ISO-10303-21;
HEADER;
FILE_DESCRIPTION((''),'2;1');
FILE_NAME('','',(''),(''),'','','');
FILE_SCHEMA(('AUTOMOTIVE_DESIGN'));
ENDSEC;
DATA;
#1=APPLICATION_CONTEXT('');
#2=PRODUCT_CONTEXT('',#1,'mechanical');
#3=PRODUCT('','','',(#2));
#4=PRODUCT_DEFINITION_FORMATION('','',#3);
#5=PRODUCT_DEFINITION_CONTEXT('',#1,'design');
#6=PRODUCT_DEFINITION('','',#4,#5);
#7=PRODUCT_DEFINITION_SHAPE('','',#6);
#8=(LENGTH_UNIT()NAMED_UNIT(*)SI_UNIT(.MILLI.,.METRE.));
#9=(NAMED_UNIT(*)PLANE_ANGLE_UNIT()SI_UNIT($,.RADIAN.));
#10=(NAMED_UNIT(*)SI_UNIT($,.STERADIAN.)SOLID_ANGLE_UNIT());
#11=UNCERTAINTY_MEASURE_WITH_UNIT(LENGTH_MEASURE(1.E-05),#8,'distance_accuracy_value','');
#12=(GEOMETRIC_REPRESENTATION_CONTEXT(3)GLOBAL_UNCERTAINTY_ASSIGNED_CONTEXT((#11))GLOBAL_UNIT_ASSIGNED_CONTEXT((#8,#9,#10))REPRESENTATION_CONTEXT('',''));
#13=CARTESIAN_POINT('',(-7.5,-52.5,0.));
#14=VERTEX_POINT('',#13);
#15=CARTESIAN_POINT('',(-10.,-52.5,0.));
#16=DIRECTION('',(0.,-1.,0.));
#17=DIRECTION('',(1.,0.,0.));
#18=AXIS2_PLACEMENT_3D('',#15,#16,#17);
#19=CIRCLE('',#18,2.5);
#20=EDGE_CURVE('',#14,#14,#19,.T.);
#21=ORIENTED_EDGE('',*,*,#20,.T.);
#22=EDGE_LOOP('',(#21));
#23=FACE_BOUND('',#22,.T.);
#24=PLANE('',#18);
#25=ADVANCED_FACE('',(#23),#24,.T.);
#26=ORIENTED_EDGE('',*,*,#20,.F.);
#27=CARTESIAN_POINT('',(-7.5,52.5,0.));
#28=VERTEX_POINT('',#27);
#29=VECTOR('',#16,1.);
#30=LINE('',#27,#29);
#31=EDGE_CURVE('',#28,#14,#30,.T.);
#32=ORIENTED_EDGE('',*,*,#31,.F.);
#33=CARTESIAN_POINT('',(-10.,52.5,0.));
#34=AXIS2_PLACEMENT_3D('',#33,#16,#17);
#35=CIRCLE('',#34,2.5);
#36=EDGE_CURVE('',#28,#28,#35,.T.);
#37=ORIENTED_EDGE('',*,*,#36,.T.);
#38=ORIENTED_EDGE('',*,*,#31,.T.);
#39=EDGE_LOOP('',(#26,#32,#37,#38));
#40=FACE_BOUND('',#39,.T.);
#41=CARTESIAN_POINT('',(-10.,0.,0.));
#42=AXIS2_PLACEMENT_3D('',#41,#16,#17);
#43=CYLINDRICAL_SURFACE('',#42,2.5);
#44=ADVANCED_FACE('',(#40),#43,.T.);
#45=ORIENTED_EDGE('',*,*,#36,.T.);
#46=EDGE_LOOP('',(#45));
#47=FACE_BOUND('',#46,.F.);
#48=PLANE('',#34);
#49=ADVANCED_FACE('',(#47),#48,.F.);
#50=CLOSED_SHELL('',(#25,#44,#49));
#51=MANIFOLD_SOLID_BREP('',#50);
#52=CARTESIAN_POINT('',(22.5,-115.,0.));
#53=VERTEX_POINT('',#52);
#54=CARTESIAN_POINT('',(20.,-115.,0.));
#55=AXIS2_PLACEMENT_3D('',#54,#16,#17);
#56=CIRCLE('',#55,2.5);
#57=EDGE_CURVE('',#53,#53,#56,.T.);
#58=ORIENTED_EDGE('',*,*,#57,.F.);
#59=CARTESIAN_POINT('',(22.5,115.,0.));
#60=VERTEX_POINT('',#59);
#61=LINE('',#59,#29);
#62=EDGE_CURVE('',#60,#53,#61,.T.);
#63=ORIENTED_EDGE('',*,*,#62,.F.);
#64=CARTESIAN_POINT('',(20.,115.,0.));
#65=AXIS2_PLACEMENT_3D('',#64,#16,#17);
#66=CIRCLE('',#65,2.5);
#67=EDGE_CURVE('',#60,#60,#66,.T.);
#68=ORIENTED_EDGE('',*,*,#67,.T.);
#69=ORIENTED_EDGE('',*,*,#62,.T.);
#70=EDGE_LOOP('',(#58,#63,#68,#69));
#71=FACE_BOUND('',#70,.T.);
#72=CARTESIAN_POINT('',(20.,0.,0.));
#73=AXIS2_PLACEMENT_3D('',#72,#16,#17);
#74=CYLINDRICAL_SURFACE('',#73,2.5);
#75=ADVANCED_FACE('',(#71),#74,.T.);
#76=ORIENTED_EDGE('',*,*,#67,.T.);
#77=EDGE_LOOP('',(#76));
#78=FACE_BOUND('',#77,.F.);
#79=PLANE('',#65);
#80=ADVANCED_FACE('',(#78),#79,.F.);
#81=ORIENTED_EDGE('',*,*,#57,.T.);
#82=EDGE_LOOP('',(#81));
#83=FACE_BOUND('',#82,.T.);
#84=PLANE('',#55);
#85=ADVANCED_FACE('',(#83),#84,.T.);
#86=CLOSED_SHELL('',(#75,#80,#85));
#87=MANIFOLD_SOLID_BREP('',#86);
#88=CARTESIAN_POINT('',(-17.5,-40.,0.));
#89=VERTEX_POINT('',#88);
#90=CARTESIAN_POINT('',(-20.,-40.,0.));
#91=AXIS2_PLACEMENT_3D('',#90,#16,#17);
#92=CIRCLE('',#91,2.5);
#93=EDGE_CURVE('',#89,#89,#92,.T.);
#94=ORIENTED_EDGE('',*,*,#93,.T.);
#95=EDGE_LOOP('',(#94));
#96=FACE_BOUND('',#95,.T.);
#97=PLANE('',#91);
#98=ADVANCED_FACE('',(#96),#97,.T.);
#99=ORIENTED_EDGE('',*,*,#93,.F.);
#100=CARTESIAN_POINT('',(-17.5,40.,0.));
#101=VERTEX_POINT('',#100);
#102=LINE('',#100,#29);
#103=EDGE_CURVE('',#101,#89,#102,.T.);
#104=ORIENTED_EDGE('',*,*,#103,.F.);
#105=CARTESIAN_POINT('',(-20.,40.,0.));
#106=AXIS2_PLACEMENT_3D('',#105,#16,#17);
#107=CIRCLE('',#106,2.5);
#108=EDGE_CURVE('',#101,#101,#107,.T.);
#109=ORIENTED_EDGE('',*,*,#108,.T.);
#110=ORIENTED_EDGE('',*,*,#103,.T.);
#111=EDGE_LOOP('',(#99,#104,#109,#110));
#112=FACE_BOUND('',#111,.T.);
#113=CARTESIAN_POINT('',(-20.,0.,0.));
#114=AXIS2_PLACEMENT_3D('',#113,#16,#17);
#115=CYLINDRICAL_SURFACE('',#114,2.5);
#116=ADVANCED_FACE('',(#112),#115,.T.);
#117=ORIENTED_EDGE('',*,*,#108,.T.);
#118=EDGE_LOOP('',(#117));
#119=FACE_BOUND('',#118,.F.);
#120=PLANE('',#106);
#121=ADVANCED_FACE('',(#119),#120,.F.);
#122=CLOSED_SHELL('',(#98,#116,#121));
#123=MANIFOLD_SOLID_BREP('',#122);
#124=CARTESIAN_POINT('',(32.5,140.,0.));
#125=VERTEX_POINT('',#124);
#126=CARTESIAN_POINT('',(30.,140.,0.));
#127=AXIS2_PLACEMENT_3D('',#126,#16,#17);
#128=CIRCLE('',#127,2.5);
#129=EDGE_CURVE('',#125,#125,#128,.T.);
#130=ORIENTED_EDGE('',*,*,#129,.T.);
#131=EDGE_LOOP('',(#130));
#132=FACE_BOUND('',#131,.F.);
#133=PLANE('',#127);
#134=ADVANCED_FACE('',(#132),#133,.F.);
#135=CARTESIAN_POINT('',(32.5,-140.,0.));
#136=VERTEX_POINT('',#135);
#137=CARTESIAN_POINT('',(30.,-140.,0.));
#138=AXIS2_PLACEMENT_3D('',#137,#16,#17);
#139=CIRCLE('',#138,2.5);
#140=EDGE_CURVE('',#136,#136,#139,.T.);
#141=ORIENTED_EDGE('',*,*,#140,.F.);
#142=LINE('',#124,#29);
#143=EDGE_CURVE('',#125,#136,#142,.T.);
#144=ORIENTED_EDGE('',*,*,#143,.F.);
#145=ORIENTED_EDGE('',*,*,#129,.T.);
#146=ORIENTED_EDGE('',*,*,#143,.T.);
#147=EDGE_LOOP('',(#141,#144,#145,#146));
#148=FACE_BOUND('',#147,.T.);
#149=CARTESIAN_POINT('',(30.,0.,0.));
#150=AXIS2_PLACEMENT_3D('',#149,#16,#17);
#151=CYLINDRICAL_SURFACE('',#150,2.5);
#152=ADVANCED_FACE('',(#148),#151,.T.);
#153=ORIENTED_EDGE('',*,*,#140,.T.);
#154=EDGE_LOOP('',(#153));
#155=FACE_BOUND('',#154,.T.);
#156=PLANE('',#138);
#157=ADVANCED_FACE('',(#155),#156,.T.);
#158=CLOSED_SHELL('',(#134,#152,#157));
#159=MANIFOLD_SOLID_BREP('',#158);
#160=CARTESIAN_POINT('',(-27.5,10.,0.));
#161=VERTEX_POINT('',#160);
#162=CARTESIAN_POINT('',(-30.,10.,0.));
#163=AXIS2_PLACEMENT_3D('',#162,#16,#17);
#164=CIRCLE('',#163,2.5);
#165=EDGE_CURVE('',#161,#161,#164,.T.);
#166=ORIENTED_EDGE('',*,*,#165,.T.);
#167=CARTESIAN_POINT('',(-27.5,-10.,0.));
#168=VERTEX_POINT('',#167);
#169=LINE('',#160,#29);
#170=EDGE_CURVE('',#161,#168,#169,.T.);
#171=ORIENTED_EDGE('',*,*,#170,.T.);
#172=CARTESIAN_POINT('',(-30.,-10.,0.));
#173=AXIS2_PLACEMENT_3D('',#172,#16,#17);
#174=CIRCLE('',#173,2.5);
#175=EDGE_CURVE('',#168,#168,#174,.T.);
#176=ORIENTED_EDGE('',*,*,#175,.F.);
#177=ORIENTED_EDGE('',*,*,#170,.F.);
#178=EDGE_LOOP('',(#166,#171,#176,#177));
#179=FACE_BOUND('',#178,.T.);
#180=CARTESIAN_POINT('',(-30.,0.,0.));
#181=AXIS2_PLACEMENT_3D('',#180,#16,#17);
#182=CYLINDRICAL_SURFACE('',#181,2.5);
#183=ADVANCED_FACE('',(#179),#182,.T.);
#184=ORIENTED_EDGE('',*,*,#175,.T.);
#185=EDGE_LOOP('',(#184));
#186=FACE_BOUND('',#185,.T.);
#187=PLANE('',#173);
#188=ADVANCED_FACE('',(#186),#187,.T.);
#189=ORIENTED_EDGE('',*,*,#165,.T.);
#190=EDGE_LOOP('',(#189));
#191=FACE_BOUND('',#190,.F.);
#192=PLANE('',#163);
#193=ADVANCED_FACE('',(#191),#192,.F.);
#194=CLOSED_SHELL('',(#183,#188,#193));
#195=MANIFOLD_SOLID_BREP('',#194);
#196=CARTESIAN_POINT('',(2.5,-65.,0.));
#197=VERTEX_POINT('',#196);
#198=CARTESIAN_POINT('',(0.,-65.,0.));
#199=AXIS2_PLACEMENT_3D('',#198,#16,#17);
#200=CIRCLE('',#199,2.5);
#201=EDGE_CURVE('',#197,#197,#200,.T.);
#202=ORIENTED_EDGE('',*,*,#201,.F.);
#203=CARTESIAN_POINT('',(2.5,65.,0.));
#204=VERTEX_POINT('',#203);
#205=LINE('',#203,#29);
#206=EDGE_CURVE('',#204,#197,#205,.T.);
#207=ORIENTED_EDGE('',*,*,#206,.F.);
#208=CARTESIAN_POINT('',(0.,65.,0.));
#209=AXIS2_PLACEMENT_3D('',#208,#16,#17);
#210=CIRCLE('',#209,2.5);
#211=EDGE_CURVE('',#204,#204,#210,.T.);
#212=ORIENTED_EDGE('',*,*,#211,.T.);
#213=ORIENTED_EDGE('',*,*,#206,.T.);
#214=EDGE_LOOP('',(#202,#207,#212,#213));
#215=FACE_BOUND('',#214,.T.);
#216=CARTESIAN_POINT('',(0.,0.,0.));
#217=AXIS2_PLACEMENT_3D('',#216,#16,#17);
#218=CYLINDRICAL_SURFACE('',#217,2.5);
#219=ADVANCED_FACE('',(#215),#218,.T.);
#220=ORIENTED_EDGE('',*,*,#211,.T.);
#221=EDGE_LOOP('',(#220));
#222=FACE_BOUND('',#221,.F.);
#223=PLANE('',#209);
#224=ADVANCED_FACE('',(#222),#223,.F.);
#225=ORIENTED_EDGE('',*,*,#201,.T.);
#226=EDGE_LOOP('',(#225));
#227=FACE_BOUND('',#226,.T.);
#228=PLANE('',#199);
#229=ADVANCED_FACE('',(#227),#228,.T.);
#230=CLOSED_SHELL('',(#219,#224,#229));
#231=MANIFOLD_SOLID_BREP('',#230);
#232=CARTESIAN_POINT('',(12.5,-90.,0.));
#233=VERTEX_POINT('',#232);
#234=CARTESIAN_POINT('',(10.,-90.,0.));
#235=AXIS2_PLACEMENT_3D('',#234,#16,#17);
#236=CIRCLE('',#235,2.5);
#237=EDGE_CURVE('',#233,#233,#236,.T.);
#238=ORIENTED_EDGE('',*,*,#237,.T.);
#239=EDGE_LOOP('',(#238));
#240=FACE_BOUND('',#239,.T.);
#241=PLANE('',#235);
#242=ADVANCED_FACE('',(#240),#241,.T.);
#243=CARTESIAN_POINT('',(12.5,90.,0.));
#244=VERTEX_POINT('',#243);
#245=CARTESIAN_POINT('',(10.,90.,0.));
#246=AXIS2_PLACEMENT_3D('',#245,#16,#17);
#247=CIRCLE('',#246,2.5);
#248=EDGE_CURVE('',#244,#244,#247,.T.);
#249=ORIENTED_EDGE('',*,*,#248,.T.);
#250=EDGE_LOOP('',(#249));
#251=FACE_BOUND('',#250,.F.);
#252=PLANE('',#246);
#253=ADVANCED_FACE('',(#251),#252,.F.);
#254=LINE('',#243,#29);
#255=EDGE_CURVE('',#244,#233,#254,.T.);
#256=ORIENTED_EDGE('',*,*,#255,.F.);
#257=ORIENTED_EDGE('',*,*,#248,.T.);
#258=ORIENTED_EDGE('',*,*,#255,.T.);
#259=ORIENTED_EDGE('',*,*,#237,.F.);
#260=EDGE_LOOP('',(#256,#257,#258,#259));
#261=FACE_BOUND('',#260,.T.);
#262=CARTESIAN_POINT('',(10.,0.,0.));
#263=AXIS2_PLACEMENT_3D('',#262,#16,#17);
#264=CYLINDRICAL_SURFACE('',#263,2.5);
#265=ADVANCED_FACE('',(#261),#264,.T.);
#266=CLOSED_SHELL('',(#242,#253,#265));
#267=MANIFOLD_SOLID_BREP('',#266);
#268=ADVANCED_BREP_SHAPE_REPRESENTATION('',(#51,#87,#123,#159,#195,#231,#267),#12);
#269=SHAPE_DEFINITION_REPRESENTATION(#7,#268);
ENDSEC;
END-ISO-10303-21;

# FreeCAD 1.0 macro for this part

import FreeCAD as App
import Part
import Sketcher

V = App.Vector
Q = App.Units.Quantity

doc = App.newDocument("Part")
body = doc.addObject("PartDesign::Body", "Body")

# Sketch on XZ plane
sketch1 = body.newObject("Sketcher::SketchObject", "Sketch")
sketch1.AttachmentSupport = (doc.getObject("XZ_Plane"), [""])
sketch1.MapMode = "FlatFace"
sketch1.addGeometry(Part.Circle(V(-30, 0, 0), V(0, 0, 1), 2.5), False)
sketch1.addConstraint([
    Sketcher.Constraint("PointOnObject", 0, 3, -1),
    Sketcher.Constraint("Diameter", 0, Q("5 mm")),
    Sketcher.Constraint("DistanceX", 0, 3, -1, 1, Q("30 mm")),
])
pad1 = body.newObject("PartDesign::Pad", "Pad")
pad1.Profile = sketch1
pad1.Length = 20
pad1.Midplane = True
body2 = doc.addObject("PartDesign::Body", "Body001")

# Sketch on XZ plane
sketch2 = body2.newObject("Sketcher::SketchObject", "Sketch001")
sketch2.AttachmentSupport = (doc.getObject("XZ_Plane001"), [""])
sketch2.MapMode = "FlatFace"
sketch2.addGeometry(Part.Circle(V(-20, 0, 0), V(0, 0, 1), 2.5), False)
sketch2.addConstraint([
    Sketcher.Constraint("PointOnObject", 0, 3, -1),
    Sketcher.Constraint("Diameter", 0, Q("5 mm")),
    Sketcher.Constraint("DistanceX", 0, 3, -1, 1, Q("20 mm")),
])
pad2 = body2.newObject("PartDesign::Pad", "Pad001")
pad2.Profile = sketch2
pad2.Length = 80
pad2.Midplane = True
body3 = doc.addObject("PartDesign::Body", "Body002")

# Sketch on XZ plane
sketch3 = body3.newObject("Sketcher::SketchObject", "Sketch002")
sketch3.AttachmentSupport = (doc.getObject("XZ_Plane002"), [""])
sketch3.MapMode = "FlatFace"
sketch3.addGeometry(Part.Circle(V(-10, 0, 0), V(0, 0, 1), 2.5), False)
sketch3.addConstraint([
    Sketcher.Constraint("PointOnObject", 0, 3, -1),
    Sketcher.Constraint("Diameter", 0, Q("5 mm")),
    Sketcher.Constraint("DistanceX", 0, 3, -1, 1, Q("10 mm")),
])
pad3 = body3.newObject("PartDesign::Pad", "Pad002")
pad3.Profile = sketch3
pad3.Length = 105
pad3.Midplane = True
body4 = doc.addObject("PartDesign::Body", "Body003")

# Sketch on XZ plane
sketch4 = body4.newObject("Sketcher::SketchObject", "Sketch003")
sketch4.AttachmentSupport = (doc.getObject("XZ_Plane003"), [""])
sketch4.MapMode = "FlatFace"
sketch4.addGeometry(Part.Circle(V(0, 0, 0), V(0, 0, 1), 2.5), False)
sketch4.addConstraint([
    Sketcher.Constraint("Coincident", 0, 3, -1, 1),
    Sketcher.Constraint("Diameter", 0, Q("5 mm")),
])
pad4 = body4.newObject("PartDesign::Pad", "Pad003")
pad4.Profile = sketch4
pad4.Length = 130
pad4.Midplane = True
body5 = doc.addObject("PartDesign::Body", "Body004")

# Sketch on XZ plane
sketch5 = body5.newObject("Sketcher::SketchObject", "Sketch004")
sketch5.AttachmentSupport = (doc.getObject("XZ_Plane004"), [""])
sketch5.MapMode = "FlatFace"
sketch5.addGeometry(Part.Circle(V(10, 0, 0), V(0, 0, 1), 2.5), False)
sketch5.addConstraint([
    Sketcher.Constraint("PointOnObject", 0, 3, -1),
    Sketcher.Constraint("Diameter", 0, Q("5 mm")),
    Sketcher.Constraint("DistanceX", -1, 1, 0, 3, Q("10 mm")),
])
pad5 = body5.newObject("PartDesign::Pad", "Pad004")
pad5.Profile = sketch5
pad5.Length = 180
pad5.Midplane = True
body6 = doc.addObject("PartDesign::Body", "Body005")

# Sketch on XZ plane
sketch6 = body6.newObject("Sketcher::SketchObject", "Sketch005")
sketch6.AttachmentSupport = (doc.getObject("XZ_Plane005"), [""])
sketch6.MapMode = "FlatFace"
sketch6.addGeometry(Part.Circle(V(20, 0, 0), V(0, 0, 1), 2.5), False)
sketch6.addConstraint([
    Sketcher.Constraint("PointOnObject", 0, 3, -1),
    Sketcher.Constraint("Diameter", 0, Q("5 mm")),
    Sketcher.Constraint("DistanceX", -1, 1, 0, 3, Q("20 mm")),
])
pad6 = body6.newObject("PartDesign::Pad", "Pad005")
pad6.Profile = sketch6
pad6.Length = 230
pad6.Midplane = True
body7 = doc.addObject("PartDesign::Body", "Body006")

# Sketch on XZ plane
sketch7 = body7.newObject("Sketcher::SketchObject", "Sketch006")
sketch7.AttachmentSupport = (doc.getObject("XZ_Plane006"), [""])
sketch7.MapMode = "FlatFace"
sketch7.addGeometry(Part.Circle(V(30, 0, 0), V(0, 0, 1), 2.5), False)
sketch7.addConstraint([
    Sketcher.Constraint("PointOnObject", 0, 3, -1),
    Sketcher.Constraint("Diameter", 0, Q("5 mm")),
    Sketcher.Constraint("DistanceX", -1, 1, 0, 3, Q("30 mm")),
])
pad7 = body7.newObject("PartDesign::Pad", "Pad006")
pad7.Profile = sketch7
pad7.Length = 280
pad7.Midplane = True

doc.recompute()
